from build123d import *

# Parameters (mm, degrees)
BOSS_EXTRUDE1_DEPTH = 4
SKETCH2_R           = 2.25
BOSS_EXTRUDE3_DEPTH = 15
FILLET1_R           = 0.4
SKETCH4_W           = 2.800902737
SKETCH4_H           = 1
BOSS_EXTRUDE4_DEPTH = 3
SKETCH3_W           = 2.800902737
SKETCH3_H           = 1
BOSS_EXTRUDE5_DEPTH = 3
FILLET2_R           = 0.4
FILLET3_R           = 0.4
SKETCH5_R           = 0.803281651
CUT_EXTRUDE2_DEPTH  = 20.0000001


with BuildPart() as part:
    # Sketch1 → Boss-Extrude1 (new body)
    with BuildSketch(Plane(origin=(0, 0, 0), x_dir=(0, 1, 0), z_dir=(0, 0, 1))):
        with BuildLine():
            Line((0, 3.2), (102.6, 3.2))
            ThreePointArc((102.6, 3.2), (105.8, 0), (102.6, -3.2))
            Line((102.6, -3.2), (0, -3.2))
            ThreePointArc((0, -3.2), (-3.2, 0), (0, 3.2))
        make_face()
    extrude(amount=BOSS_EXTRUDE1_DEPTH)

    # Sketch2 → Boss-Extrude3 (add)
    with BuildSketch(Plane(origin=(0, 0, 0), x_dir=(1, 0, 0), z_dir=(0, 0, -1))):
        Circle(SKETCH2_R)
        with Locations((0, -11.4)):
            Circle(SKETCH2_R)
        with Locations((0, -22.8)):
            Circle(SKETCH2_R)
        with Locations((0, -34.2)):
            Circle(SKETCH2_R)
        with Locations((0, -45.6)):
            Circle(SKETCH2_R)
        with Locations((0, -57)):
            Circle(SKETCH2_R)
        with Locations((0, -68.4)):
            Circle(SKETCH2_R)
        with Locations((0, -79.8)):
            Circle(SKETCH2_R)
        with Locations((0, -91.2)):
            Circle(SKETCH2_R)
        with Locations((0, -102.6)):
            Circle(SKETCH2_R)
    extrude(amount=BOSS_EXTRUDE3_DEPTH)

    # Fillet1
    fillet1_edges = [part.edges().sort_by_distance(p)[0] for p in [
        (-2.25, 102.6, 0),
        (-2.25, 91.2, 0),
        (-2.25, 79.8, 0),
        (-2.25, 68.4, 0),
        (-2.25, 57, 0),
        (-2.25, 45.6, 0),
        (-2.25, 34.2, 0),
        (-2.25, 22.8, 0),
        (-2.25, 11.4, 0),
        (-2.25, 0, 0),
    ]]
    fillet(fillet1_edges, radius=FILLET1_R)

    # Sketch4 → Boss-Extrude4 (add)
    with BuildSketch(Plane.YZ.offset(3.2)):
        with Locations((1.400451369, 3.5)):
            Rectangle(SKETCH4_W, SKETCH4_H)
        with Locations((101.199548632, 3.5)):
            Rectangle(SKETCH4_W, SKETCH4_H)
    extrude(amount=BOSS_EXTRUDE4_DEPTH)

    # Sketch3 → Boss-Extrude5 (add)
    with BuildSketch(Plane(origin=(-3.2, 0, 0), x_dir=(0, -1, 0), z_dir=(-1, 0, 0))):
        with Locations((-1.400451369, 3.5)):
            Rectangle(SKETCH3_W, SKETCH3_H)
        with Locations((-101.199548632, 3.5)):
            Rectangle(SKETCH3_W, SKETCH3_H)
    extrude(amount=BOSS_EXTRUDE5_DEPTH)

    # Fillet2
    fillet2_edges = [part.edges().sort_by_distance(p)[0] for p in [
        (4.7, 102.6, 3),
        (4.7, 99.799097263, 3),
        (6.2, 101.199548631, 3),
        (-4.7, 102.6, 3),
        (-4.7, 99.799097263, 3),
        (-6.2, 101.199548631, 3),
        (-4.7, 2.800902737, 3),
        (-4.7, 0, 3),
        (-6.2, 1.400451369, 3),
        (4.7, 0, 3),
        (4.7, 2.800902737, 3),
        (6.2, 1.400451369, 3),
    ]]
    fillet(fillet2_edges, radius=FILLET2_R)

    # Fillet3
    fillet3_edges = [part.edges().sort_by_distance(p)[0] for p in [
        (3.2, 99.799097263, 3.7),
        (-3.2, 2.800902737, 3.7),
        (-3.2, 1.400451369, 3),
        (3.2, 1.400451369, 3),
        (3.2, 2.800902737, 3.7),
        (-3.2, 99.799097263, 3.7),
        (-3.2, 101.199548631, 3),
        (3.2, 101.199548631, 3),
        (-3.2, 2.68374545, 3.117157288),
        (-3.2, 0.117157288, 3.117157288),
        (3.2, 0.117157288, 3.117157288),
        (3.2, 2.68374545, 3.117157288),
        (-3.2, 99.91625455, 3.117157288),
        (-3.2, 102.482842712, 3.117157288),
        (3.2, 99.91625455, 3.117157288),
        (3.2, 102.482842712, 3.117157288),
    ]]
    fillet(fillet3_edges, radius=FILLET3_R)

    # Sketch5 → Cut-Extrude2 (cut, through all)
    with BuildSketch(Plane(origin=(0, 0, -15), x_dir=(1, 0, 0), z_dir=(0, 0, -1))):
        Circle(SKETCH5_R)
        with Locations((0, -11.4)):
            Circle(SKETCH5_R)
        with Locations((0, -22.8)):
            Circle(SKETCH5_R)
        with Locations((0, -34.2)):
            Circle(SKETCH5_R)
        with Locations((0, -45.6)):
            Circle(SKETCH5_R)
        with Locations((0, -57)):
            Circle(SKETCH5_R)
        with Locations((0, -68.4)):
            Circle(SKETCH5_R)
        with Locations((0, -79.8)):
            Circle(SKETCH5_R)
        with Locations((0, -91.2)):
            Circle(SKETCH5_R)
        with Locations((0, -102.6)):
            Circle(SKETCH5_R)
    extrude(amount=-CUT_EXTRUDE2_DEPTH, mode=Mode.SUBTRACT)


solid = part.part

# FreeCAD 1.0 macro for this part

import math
import FreeCAD as App
import Part
import Sketcher


def edges_at(feature, points):
    """Names of the edges that pass closest to the given points."""
    edges = feature.Shape.Edges
    near = lambda p: min(range(len(edges)), key=lambda i: edges[i].distToShape(Part.Vertex(*p))[0])
    return sorted({f"Edge{near(p) + 1}" for p in points})

doc = App.newDocument("Part")
params = doc.addObject("Spreadsheet::Sheet", "Params")
for row, (alias, value) in enumerate([
    ("sketch1_radius", "3.2 mm"),
    ("sketch1_height", "102.6 mm"),
    ("pad1_length", "4 mm"),
    ("sketch2_diameter", "4.5 mm"),
    ("pad2_length", "15 mm"),
    ("fillet_radius", "0.4 mm"),
    ("sketch3_height", "1 mm"),
    ("pad3_length", "3 mm"),
    ("sketch4_height", "1 mm"),
    ("pad4_length", "3 mm"),
    ("fillet2_radius", "0.4 mm"),
    ("fillet3_radius", "0.4 mm"),
], start=1):
    params.set(f"A{row}", alias)
    params.set(f"B{row}", "=" + value)
    params.setAlias(f"B{row}", alias)

body = doc.addObject("PartDesign::Body", "Body")

# Sketch on XY plane
sketch1 = body.newObject("Sketcher::SketchObject", "Sketch")
sketch1.AttachmentSupport = (doc.getObject("XY_Plane"), [""])
sketch1.MapMode = "FlatFace"
sketch1.addGeometry(Part.LineSegment(App.Vector(-3.2, 102.6, 0), App.Vector(-3.2, 0, 0)), False)
sketch1.addGeometry(Part.ArcOfCircle(Part.Circle(App.Vector(0, 0, 0), App.Vector(0, 0, 1), 3.2), math.radians(180), math.radians(360)), False)
sketch1.addGeometry(Part.LineSegment(App.Vector(3.2, 0, 0), App.Vector(3.2, 102.6, 0)), False)
sketch1.addGeometry(Part.ArcOfCircle(Part.Circle(App.Vector(0, 102.6, 0), App.Vector(0, 0, 1), 3.2), math.radians(0), math.radians(180)), False)
sketch1.addConstraint(Sketcher.Constraint("Tangent", 0, 2, 1, 1))
sketch1.addConstraint(Sketcher.Constraint("Tangent", 1, 2, 2, 1))
sketch1.addConstraint(Sketcher.Constraint("Tangent", 2, 2, 3, 1))
sketch1.addConstraint(Sketcher.Constraint("Tangent", 3, 2, 0, 1))
sketch1.addConstraint(Sketcher.Constraint("Vertical", 0))
sketch1.addConstraint(Sketcher.Constraint("Vertical", 2))
sketch1.addConstraint(Sketcher.Constraint("Coincident", 1, 3, -1, 1))
sketch1.addConstraint(Sketcher.Constraint("Radius", 1, 3.2))
sketch1.addConstraint(Sketcher.Constraint("DistanceY", 0, 2, 0, 1, 102.6))
sketch1.setExpression("Constraints[7]", "Params.sketch1_radius")
sketch1.setExpression("Constraints[8]", "Params.sketch1_height")
pad1 = body.newObject("PartDesign::Pad", "Pad")
pad1.Profile = sketch1
pad1.setExpression("Length", "Params.pad1_length")

# Sketch on XY plane
sketch2 = body.newObject("Sketcher::SketchObject", "Sketch001")
sketch2.AttachmentSupport = (doc.getObject("XY_Plane"), [""])
sketch2.MapMode = "FlatFace"
sketch2.addGeometry(Part.Circle(App.Vector(0, 0, 0), App.Vector(0, 0, 1), 2.2), False)
sketch2.addGeometry(Part.Circle(App.Vector(0, 11.4, 0), App.Vector(0, 0, 1), 2.2), False)
sketch2.addGeometry(Part.Circle(App.Vector(0, 22.8, 0), App.Vector(0, 0, 1), 2.2), False)
sketch2.addGeometry(Part.Circle(App.Vector(0, 34.2, 0), App.Vector(0, 0, 1), 2.2), False)
sketch2.addGeometry(Part.Circle(App.Vector(0, 45.6, 0), App.Vector(0, 0, 1), 2.2), False)
sketch2.addGeometry(Part.Circle(App.Vector(0, 57, 0), App.Vector(0, 0, 1), 2.2), False)
sketch2.addGeometry(Part.Circle(App.Vector(0, 68.4, 0), App.Vector(0, 0, 1), 2.2), False)
sketch2.addGeometry(Part.Circle(App.Vector(0, 79.8, 0), App.Vector(0, 0, 1), 2.2), False)
sketch2.addGeometry(Part.Circle(App.Vector(0, 91.2, 0), App.Vector(0, 0, 1), 2.2), False)
sketch2.addGeometry(Part.Circle(App.Vector(0, 102.6, 0), App.Vector(0, 0, 1), 2.2), False)
sketch2.addConstraint(Sketcher.Constraint("Coincident", 0, 3, -1, 1))
sketch2.addConstraint(Sketcher.Constraint("Equal", 0, 1))
sketch2.addConstraint(Sketcher.Constraint("Equal", 1, 2))
sketch2.addConstraint(Sketcher.Constraint("Equal", 2, 3))
sketch2.addConstraint(Sketcher.Constraint("Equal", 3, 4))
sketch2.addConstraint(Sketcher.Constraint("Equal", 4, 5))
sketch2.addConstraint(Sketcher.Constraint("Equal", 5, 6))
sketch2.addConstraint(Sketcher.Constraint("Equal", 6, 7))
sketch2.addConstraint(Sketcher.Constraint("Equal", 7, 8))
sketch2.addConstraint(Sketcher.Constraint("Equal", 8, 9))
sketch2.addConstraint(Sketcher.Constraint("PointOnObject", 1, 3, -2))
sketch2.addConstraint(Sketcher.Constraint("PointOnObject", 2, 3, -2))
sketch2.addConstraint(Sketcher.Constraint("PointOnObject", 3, 3, -2))
sketch2.addConstraint(Sketcher.Constraint("PointOnObject", 4, 3, -2))
sketch2.addConstraint(Sketcher.Constraint("PointOnObject", 5, 3, -2))
sketch2.addConstraint(Sketcher.Constraint("PointOnObject", 6, 3, -2))
sketch2.addConstraint(Sketcher.Constraint("PointOnObject", 7, 3, -2))
sketch2.addConstraint(Sketcher.Constraint("PointOnObject", 8, 3, -2))
sketch2.addConstraint(Sketcher.Constraint("PointOnObject", 9, 3, -2))
sketch2.addConstraint(Sketcher.Constraint("Diameter", 0, 4.5))
sketch2.addConstraint(Sketcher.Constraint("DistanceY", -1, 1, 5, 3, 57.0))
sketch2.addConstraint(Sketcher.Constraint("DistanceY", 1, 3, 6, 3, 57.0))
sketch2.addConstraint(Sketcher.Constraint("DistanceY", 2, 3, 7, 3, 57.0))
sketch2.addConstraint(Sketcher.Constraint("DistanceY", 3, 3, 8, 3, 57.0))
sketch2.addConstraint(Sketcher.Constraint("DistanceY", 4, 3, 9, 3, 57.0))
sketch2.addConstraint(Sketcher.Constraint("DistanceY", -1, 1, 1, 3, 11.4))
sketch2.addConstraint(Sketcher.Constraint("DistanceY", -1, 1, 2, 3, 22.8))
sketch2.addConstraint(Sketcher.Constraint("DistanceY", -1, 1, 3, 3, 34.2))
sketch2.addConstraint(Sketcher.Constraint("DistanceY", -1, 1, 4, 3, 45.6))
sketch2.setExpression("Constraints[19]", "Params.sketch2_diameter")
pad2 = body.newObject("PartDesign::Pad", "Pad001")
pad2.Profile = sketch2
pad2.setExpression("Length", "Params.pad2_length")
pad2.Reversed = True
doc.recompute()

fillet = body.newObject("PartDesign::Fillet", "Fillet")
fillet.Base = (pad2, edges_at(pad2, [
    (-2.25, 102.6, 0),
    (-2.25, 91.2, 0),
    (-2.25, 79.8, 0),
    (-2.25, 68.4, 0),
    (-2.25, 57, 0),
    (-2.25, 45.6, 0),
    (-2.25, 34.2, 0),
    (-2.25, 22.8, 0),
    (-2.25, 11.4, 0),
    (-2.25, 0, 0),
]))
fillet.setExpression("Radius", "Params.fillet_radius")

# Sketch on YZ plane
sketch3 = body.newObject("Sketcher::SketchObject", "Sketch002")
sketch3.AttachmentSupport = (doc.getObject("YZ_Plane"), [""])
sketch3.MapMode = "FlatFace"
sketch3.AttachmentOffset = App.Placement(App.Vector(0, 0, 3.2), App.Rotation())
sketch3.addGeometry(Part.LineSegment(App.Vector(0, 4, 0), App.Vector(0, 3, 0)), False)
sketch3.addGeometry(Part.LineSegment(App.Vector(0, 3, 0), App.Vector(2.8, 3, 0)), False)
sketch3.addGeometry(Part.LineSegment(App.Vector(2.8, 3, 0), App.Vector(2.8, 4, 0)), False)
sketch3.addGeometry(Part.LineSegment(App.Vector(2.8, 4, 0), App.Vector(0, 4, 0)), False)
sketch3.addGeometry(Part.LineSegment(App.Vector(99.8, 4, 0), App.Vector(99.8, 3, 0)), False)
sketch3.addGeometry(Part.LineSegment(App.Vector(99.8, 3, 0), App.Vector(102.6, 3, 0)), False)
sketch3.addGeometry(Part.LineSegment(App.Vector(102.6, 3, 0), App.Vector(102.6, 4, 0)), False)
sketch3.addGeometry(Part.LineSegment(App.Vector(102.6, 4, 0), App.Vector(99.8, 4, 0)), False)
sketch3.addConstraint(Sketcher.Constraint("Coincident", 0, 2, 1, 1))
sketch3.addConstraint(Sketcher.Constraint("Coincident", 1, 2, 2, 1))
sketch3.addConstraint(Sketcher.Constraint("Coincident", 2, 2, 3, 1))
sketch3.addConstraint(Sketcher.Constraint("Coincident", 3, 2, 0, 1))
sketch3.addConstraint(Sketcher.Constraint("Coincident", 4, 2, 5, 1))
sketch3.addConstraint(Sketcher.Constraint("Coincident", 5, 2, 6, 1))
sketch3.addConstraint(Sketcher.Constraint("Coincident", 6, 2, 7, 1))
sketch3.addConstraint(Sketcher.Constraint("Coincident", 7, 2, 4, 1))
sketch3.addConstraint(Sketcher.Constraint("Vertical", 0))
sketch3.addConstraint(Sketcher.Constraint("Horizontal", 1))
sketch3.addConstraint(Sketcher.Constraint("Vertical", 2))
sketch3.addConstraint(Sketcher.Constraint("Horizontal", 3))
sketch3.addConstraint(Sketcher.Constraint("Vertical", 4))
sketch3.addConstraint(Sketcher.Constraint("Horizontal", 5))
sketch3.addConstraint(Sketcher.Constraint("Vertical", 6))
sketch3.addConstraint(Sketcher.Constraint("Horizontal", 7))
sketch3.addConstraint(Sketcher.Constraint("PointOnObject", 0, 2, -2))
sketch3.addConstraint(Sketcher.Constraint("Horizontal", 1, 2, 4, 2))
sketch3.addConstraint(Sketcher.Constraint("Horizontal", 3, 2, 6, 2))
sketch3.addConstraint(Sketcher.Constraint("Equal", 3, 5))
sketch3.addConstraint(Sketcher.Constraint("DistanceY", 0, 2, 0, 1, 1.0))
sketch3.addConstraint(Sketcher.Constraint("DistanceY", -1, 1, 0, 2, 3.0))
sketch3.addConstraint(Sketcher.Constraint("DistanceX", -1, 1, 5, 2, 102.6))
sketch3.addConstraint(Sketcher.Constraint("DistanceX", 1, 1, 1, 2, 2.800903))
sketch3.setExpression("Constraints[20]", "Params.sketch3_height")
pad3 = body.newObject("PartDesign::Pad", "Pad002")
pad3.Profile = sketch3
pad3.setExpression("Length", "Params.pad3_length")

# Sketch on YZ plane
sketch4 = body.newObject("Sketcher::SketchObject", "Sketch003")
sketch4.AttachmentSupport = (doc.getObject("YZ_Plane"), [""])
sketch4.MapMode = "FlatFace"
sketch4.AttachmentOffset = App.Placement(App.Vector(0, 0, -3.2), App.Rotation())
sketch4.addGeometry(Part.LineSegment(App.Vector(2.8, 4, 0), App.Vector(2.8, 3, 0)), False)
sketch4.addGeometry(Part.LineSegment(App.Vector(2.8, 3, 0), App.Vector(0, 3, 0)), False)
sketch4.addGeometry(Part.LineSegment(App.Vector(0, 3, 0), App.Vector(0, 4, 0)), False)
sketch4.addGeometry(Part.LineSegment(App.Vector(0, 4, 0), App.Vector(2.8, 4, 0)), False)
sketch4.addGeometry(Part.LineSegment(App.Vector(102.6, 4, 0), App.Vector(102.6, 3, 0)), False)
sketch4.addGeometry(Part.LineSegment(App.Vector(102.6, 3, 0), App.Vector(99.8, 3, 0)), False)
sketch4.addGeometry(Part.LineSegment(App.Vector(99.8, 3, 0), App.Vector(99.8, 4, 0)), False)
sketch4.addGeometry(Part.LineSegment(App.Vector(99.8, 4, 0), App.Vector(102.6, 4, 0)), False)
sketch4.addConstraint(Sketcher.Constraint("Coincident", 0, 2, 1, 1))
sketch4.addConstraint(Sketcher.Constraint("Coincident", 1, 2, 2, 1))
sketch4.addConstraint(Sketcher.Constraint("Coincident", 2, 2, 3, 1))
sketch4.addConstraint(Sketcher.Constraint("Coincident", 3, 2, 0, 1))
sketch4.addConstraint(Sketcher.Constraint("Coincident", 4, 2, 5, 1))
sketch4.addConstraint(Sketcher.Constraint("Coincident", 5, 2, 6, 1))
sketch4.addConstraint(Sketcher.Constraint("Coincident", 6, 2, 7, 1))
sketch4.addConstraint(Sketcher.Constraint("Coincident", 7, 2, 4, 1))
sketch4.addConstraint(Sketcher.Constraint("Vertical", 0))
sketch4.addConstraint(Sketcher.Constraint("Horizontal", 1))
sketch4.addConstraint(Sketcher.Constraint("Vertical", 2))
sketch4.addConstraint(Sketcher.Constraint("Horizontal", 3))
sketch4.addConstraint(Sketcher.Constraint("Vertical", 4))
sketch4.addConstraint(Sketcher.Constraint("Horizontal", 5))
sketch4.addConstraint(Sketcher.Constraint("Vertical", 6))
sketch4.addConstraint(Sketcher.Constraint("Horizontal", 7))
sketch4.addConstraint(Sketcher.Constraint("PointOnObject", 1, 2, -2))
sketch4.addConstraint(Sketcher.Constraint("Horizontal", 1, 2, 4, 2))
sketch4.addConstraint(Sketcher.Constraint("Horizontal", 3, 2, 6, 2))
sketch4.addConstraint(Sketcher.Constraint("Equal", 3, 5))
sketch4.addConstraint(Sketcher.Constraint("DistanceY", 0, 2, 0, 1, 1.0))
sketch4.addConstraint(Sketcher.Constraint("DistanceY", -1, 1, 0, 2, 3.0))
sketch4.addConstraint(Sketcher.Constraint("DistanceX", -1, 1, 4, 2, 102.6))
sketch4.addConstraint(Sketcher.Constraint("DistanceX", 1, 2, 1, 1, 2.800903))
sketch4.setExpression("Constraints[20]", "Params.sketch4_height")
pad4 = body.newObject("PartDesign::Pad", "Pad003")
pad4.Profile = sketch4
pad4.setExpression("Length", "Params.pad4_length")
pad4.Reversed = True
doc.recompute()

fillet2 = body.newObject("PartDesign::Fillet", "Fillet001")
fillet2.Base = (pad4, edges_at(pad4, [
    (4.7, 102.6, 3),
    (4.7, 99.799, 3),
    (6.2, 101.2, 3),
    (-4.7, 102.6, 3),
    (-4.7, 99.799, 3),
    (-6.2, 101.2, 3),
    (-4.7, 2.801, 3),
    (-4.7, 0, 3),
    (-6.2, 1.4, 3),
    (4.7, 0, 3),
    (4.7, 2.801, 3),
    (6.2, 1.4, 3),
]))
fillet2.setExpression("Radius", "Params.fillet2_radius")
doc.recompute()

fillet3 = body.newObject("PartDesign::Fillet", "Fillet002")
fillet3.Base = (fillet2, edges_at(fillet2, [
    (3.2, 99.799, 3.7),
    (-3.2, 2.801, 3.7),
    (-3.2, 1.4, 3),
    (3.2, 1.4, 3),
    (3.2, 2.801, 3.7),
    (-3.2, 99.799, 3.7),
    (-3.2, 101.2, 3),
    (3.2, 101.2, 3),
    (-3.2, 2.684, 3.117),
    (-3.2, 0.117, 3.117),
    (3.2, 0.117, 3.117),
    (3.2, 2.684, 3.117),
    (-3.2, 99.916, 3.117),
    (-3.2, 102.483, 3.117),
    (3.2, 99.916, 3.117),
    (3.2, 102.483, 3.117),
]))
fillet3.setExpression("Radius", "Params.fillet3_radius")

# Sketch on XY plane
sketch5 = body.newObject("Sketcher::SketchObject", "Sketch004")
sketch5.AttachmentSupport = (doc.getObject("XY_Plane"), [""])
sketch5.MapMode = "FlatFace"
sketch5.AttachmentOffset = App.Placement(App.Vector(0, 0, -15), App.Rotation())
sketch5.addGeometry(Part.Circle(App.Vector(0, 0, 0), App.Vector(0, 0, 1), 0.8), False)
sketch5.addGeometry(Part.Circle(App.Vector(0, 11.4, 0), App.Vector(0, 0, 1), 0.8), False)
sketch5.addGeometry(Part.Circle(App.Vector(0, 22.8, 0), App.Vector(0, 0, 1), 0.8), False)
sketch5.addGeometry(Part.Circle(App.Vector(0, 34.2, 0), App.Vector(0, 0, 1), 0.8), False)
sketch5.addGeometry(Part.Circle(App.Vector(0, 45.6, 0), App.Vector(0, 0, 1), 0.8), False)
sketch5.addGeometry(Part.Circle(App.Vector(0, 57, 0), App.Vector(0, 0, 1), 0.8), False)
sketch5.addGeometry(Part.Circle(App.Vector(0, 68.4, 0), App.Vector(0, 0, 1), 0.8), False)
sketch5.addGeometry(Part.Circle(App.Vector(0, 79.8, 0), App.Vector(0, 0, 1), 0.8), False)
sketch5.addGeometry(Part.Circle(App.Vector(0, 91.2, 0), App.Vector(0, 0, 1), 0.8), False)
sketch5.addGeometry(Part.Circle(App.Vector(0, 102.6, 0), App.Vector(0, 0, 1), 0.8), False)
sketch5.addConstraint(Sketcher.Constraint("Coincident", 0, 3, -1, 1))
sketch5.addConstraint(Sketcher.Constraint("Equal", 0, 1))
sketch5.addConstraint(Sketcher.Constraint("Equal", 1, 2))
sketch5.addConstraint(Sketcher.Constraint("Equal", 2, 3))
sketch5.addConstraint(Sketcher.Constraint("Equal", 3, 4))
sketch5.addConstraint(Sketcher.Constraint("Equal", 4, 5))
sketch5.addConstraint(Sketcher.Constraint("Equal", 5, 6))
sketch5.addConstraint(Sketcher.Constraint("Equal", 6, 7))
sketch5.addConstraint(Sketcher.Constraint("Equal", 7, 8))
sketch5.addConstraint(Sketcher.Constraint("Equal", 8, 9))
sketch5.addConstraint(Sketcher.Constraint("PointOnObject", 1, 3, -2))
sketch5.addConstraint(Sketcher.Constraint("PointOnObject", 2, 3, -2))
sketch5.addConstraint(Sketcher.Constraint("PointOnObject", 3, 3, -2))
sketch5.addConstraint(Sketcher.Constraint("PointOnObject", 4, 3, -2))
sketch5.addConstraint(Sketcher.Constraint("PointOnObject", 5, 3, -2))
sketch5.addConstraint(Sketcher.Constraint("PointOnObject", 6, 3, -2))
sketch5.addConstraint(Sketcher.Constraint("PointOnObject", 7, 3, -2))
sketch5.addConstraint(Sketcher.Constraint("PointOnObject", 8, 3, -2))
sketch5.addConstraint(Sketcher.Constraint("PointOnObject", 9, 3, -2))
sketch5.addConstraint(Sketcher.Constraint("DistanceY", -1, 1, 5, 3, 57.0))
sketch5.addConstraint(Sketcher.Constraint("DistanceY", 1, 3, 6, 3, 57.0))
sketch5.addConstraint(Sketcher.Constraint("DistanceY", 2, 3, 7, 3, 57.0))
sketch5.addConstraint(Sketcher.Constraint("DistanceY", 3, 3, 8, 3, 57.0))
sketch5.addConstraint(Sketcher.Constraint("DistanceY", 4, 3, 9, 3, 57.0))
sketch5.addConstraint(Sketcher.Constraint("DistanceY", -1, 1, 1, 3, 11.4))
sketch5.addConstraint(Sketcher.Constraint("DistanceY", -1, 1, 2, 3, 22.8))
sketch5.addConstraint(Sketcher.Constraint("DistanceY", -1, 1, 3, 3, 34.2))
sketch5.addConstraint(Sketcher.Constraint("DistanceY", -1, 1, 4, 3, 45.6))
sketch5.addConstraint(Sketcher.Constraint("Diameter", 0, 1.606563))
pocket1 = body.newObject("PartDesign::Pocket", "Pocket")
pocket1.Profile = sketch5
pocket1.Type = "ThroughAll"
pocket1.Reversed = True

doc.recompute()
